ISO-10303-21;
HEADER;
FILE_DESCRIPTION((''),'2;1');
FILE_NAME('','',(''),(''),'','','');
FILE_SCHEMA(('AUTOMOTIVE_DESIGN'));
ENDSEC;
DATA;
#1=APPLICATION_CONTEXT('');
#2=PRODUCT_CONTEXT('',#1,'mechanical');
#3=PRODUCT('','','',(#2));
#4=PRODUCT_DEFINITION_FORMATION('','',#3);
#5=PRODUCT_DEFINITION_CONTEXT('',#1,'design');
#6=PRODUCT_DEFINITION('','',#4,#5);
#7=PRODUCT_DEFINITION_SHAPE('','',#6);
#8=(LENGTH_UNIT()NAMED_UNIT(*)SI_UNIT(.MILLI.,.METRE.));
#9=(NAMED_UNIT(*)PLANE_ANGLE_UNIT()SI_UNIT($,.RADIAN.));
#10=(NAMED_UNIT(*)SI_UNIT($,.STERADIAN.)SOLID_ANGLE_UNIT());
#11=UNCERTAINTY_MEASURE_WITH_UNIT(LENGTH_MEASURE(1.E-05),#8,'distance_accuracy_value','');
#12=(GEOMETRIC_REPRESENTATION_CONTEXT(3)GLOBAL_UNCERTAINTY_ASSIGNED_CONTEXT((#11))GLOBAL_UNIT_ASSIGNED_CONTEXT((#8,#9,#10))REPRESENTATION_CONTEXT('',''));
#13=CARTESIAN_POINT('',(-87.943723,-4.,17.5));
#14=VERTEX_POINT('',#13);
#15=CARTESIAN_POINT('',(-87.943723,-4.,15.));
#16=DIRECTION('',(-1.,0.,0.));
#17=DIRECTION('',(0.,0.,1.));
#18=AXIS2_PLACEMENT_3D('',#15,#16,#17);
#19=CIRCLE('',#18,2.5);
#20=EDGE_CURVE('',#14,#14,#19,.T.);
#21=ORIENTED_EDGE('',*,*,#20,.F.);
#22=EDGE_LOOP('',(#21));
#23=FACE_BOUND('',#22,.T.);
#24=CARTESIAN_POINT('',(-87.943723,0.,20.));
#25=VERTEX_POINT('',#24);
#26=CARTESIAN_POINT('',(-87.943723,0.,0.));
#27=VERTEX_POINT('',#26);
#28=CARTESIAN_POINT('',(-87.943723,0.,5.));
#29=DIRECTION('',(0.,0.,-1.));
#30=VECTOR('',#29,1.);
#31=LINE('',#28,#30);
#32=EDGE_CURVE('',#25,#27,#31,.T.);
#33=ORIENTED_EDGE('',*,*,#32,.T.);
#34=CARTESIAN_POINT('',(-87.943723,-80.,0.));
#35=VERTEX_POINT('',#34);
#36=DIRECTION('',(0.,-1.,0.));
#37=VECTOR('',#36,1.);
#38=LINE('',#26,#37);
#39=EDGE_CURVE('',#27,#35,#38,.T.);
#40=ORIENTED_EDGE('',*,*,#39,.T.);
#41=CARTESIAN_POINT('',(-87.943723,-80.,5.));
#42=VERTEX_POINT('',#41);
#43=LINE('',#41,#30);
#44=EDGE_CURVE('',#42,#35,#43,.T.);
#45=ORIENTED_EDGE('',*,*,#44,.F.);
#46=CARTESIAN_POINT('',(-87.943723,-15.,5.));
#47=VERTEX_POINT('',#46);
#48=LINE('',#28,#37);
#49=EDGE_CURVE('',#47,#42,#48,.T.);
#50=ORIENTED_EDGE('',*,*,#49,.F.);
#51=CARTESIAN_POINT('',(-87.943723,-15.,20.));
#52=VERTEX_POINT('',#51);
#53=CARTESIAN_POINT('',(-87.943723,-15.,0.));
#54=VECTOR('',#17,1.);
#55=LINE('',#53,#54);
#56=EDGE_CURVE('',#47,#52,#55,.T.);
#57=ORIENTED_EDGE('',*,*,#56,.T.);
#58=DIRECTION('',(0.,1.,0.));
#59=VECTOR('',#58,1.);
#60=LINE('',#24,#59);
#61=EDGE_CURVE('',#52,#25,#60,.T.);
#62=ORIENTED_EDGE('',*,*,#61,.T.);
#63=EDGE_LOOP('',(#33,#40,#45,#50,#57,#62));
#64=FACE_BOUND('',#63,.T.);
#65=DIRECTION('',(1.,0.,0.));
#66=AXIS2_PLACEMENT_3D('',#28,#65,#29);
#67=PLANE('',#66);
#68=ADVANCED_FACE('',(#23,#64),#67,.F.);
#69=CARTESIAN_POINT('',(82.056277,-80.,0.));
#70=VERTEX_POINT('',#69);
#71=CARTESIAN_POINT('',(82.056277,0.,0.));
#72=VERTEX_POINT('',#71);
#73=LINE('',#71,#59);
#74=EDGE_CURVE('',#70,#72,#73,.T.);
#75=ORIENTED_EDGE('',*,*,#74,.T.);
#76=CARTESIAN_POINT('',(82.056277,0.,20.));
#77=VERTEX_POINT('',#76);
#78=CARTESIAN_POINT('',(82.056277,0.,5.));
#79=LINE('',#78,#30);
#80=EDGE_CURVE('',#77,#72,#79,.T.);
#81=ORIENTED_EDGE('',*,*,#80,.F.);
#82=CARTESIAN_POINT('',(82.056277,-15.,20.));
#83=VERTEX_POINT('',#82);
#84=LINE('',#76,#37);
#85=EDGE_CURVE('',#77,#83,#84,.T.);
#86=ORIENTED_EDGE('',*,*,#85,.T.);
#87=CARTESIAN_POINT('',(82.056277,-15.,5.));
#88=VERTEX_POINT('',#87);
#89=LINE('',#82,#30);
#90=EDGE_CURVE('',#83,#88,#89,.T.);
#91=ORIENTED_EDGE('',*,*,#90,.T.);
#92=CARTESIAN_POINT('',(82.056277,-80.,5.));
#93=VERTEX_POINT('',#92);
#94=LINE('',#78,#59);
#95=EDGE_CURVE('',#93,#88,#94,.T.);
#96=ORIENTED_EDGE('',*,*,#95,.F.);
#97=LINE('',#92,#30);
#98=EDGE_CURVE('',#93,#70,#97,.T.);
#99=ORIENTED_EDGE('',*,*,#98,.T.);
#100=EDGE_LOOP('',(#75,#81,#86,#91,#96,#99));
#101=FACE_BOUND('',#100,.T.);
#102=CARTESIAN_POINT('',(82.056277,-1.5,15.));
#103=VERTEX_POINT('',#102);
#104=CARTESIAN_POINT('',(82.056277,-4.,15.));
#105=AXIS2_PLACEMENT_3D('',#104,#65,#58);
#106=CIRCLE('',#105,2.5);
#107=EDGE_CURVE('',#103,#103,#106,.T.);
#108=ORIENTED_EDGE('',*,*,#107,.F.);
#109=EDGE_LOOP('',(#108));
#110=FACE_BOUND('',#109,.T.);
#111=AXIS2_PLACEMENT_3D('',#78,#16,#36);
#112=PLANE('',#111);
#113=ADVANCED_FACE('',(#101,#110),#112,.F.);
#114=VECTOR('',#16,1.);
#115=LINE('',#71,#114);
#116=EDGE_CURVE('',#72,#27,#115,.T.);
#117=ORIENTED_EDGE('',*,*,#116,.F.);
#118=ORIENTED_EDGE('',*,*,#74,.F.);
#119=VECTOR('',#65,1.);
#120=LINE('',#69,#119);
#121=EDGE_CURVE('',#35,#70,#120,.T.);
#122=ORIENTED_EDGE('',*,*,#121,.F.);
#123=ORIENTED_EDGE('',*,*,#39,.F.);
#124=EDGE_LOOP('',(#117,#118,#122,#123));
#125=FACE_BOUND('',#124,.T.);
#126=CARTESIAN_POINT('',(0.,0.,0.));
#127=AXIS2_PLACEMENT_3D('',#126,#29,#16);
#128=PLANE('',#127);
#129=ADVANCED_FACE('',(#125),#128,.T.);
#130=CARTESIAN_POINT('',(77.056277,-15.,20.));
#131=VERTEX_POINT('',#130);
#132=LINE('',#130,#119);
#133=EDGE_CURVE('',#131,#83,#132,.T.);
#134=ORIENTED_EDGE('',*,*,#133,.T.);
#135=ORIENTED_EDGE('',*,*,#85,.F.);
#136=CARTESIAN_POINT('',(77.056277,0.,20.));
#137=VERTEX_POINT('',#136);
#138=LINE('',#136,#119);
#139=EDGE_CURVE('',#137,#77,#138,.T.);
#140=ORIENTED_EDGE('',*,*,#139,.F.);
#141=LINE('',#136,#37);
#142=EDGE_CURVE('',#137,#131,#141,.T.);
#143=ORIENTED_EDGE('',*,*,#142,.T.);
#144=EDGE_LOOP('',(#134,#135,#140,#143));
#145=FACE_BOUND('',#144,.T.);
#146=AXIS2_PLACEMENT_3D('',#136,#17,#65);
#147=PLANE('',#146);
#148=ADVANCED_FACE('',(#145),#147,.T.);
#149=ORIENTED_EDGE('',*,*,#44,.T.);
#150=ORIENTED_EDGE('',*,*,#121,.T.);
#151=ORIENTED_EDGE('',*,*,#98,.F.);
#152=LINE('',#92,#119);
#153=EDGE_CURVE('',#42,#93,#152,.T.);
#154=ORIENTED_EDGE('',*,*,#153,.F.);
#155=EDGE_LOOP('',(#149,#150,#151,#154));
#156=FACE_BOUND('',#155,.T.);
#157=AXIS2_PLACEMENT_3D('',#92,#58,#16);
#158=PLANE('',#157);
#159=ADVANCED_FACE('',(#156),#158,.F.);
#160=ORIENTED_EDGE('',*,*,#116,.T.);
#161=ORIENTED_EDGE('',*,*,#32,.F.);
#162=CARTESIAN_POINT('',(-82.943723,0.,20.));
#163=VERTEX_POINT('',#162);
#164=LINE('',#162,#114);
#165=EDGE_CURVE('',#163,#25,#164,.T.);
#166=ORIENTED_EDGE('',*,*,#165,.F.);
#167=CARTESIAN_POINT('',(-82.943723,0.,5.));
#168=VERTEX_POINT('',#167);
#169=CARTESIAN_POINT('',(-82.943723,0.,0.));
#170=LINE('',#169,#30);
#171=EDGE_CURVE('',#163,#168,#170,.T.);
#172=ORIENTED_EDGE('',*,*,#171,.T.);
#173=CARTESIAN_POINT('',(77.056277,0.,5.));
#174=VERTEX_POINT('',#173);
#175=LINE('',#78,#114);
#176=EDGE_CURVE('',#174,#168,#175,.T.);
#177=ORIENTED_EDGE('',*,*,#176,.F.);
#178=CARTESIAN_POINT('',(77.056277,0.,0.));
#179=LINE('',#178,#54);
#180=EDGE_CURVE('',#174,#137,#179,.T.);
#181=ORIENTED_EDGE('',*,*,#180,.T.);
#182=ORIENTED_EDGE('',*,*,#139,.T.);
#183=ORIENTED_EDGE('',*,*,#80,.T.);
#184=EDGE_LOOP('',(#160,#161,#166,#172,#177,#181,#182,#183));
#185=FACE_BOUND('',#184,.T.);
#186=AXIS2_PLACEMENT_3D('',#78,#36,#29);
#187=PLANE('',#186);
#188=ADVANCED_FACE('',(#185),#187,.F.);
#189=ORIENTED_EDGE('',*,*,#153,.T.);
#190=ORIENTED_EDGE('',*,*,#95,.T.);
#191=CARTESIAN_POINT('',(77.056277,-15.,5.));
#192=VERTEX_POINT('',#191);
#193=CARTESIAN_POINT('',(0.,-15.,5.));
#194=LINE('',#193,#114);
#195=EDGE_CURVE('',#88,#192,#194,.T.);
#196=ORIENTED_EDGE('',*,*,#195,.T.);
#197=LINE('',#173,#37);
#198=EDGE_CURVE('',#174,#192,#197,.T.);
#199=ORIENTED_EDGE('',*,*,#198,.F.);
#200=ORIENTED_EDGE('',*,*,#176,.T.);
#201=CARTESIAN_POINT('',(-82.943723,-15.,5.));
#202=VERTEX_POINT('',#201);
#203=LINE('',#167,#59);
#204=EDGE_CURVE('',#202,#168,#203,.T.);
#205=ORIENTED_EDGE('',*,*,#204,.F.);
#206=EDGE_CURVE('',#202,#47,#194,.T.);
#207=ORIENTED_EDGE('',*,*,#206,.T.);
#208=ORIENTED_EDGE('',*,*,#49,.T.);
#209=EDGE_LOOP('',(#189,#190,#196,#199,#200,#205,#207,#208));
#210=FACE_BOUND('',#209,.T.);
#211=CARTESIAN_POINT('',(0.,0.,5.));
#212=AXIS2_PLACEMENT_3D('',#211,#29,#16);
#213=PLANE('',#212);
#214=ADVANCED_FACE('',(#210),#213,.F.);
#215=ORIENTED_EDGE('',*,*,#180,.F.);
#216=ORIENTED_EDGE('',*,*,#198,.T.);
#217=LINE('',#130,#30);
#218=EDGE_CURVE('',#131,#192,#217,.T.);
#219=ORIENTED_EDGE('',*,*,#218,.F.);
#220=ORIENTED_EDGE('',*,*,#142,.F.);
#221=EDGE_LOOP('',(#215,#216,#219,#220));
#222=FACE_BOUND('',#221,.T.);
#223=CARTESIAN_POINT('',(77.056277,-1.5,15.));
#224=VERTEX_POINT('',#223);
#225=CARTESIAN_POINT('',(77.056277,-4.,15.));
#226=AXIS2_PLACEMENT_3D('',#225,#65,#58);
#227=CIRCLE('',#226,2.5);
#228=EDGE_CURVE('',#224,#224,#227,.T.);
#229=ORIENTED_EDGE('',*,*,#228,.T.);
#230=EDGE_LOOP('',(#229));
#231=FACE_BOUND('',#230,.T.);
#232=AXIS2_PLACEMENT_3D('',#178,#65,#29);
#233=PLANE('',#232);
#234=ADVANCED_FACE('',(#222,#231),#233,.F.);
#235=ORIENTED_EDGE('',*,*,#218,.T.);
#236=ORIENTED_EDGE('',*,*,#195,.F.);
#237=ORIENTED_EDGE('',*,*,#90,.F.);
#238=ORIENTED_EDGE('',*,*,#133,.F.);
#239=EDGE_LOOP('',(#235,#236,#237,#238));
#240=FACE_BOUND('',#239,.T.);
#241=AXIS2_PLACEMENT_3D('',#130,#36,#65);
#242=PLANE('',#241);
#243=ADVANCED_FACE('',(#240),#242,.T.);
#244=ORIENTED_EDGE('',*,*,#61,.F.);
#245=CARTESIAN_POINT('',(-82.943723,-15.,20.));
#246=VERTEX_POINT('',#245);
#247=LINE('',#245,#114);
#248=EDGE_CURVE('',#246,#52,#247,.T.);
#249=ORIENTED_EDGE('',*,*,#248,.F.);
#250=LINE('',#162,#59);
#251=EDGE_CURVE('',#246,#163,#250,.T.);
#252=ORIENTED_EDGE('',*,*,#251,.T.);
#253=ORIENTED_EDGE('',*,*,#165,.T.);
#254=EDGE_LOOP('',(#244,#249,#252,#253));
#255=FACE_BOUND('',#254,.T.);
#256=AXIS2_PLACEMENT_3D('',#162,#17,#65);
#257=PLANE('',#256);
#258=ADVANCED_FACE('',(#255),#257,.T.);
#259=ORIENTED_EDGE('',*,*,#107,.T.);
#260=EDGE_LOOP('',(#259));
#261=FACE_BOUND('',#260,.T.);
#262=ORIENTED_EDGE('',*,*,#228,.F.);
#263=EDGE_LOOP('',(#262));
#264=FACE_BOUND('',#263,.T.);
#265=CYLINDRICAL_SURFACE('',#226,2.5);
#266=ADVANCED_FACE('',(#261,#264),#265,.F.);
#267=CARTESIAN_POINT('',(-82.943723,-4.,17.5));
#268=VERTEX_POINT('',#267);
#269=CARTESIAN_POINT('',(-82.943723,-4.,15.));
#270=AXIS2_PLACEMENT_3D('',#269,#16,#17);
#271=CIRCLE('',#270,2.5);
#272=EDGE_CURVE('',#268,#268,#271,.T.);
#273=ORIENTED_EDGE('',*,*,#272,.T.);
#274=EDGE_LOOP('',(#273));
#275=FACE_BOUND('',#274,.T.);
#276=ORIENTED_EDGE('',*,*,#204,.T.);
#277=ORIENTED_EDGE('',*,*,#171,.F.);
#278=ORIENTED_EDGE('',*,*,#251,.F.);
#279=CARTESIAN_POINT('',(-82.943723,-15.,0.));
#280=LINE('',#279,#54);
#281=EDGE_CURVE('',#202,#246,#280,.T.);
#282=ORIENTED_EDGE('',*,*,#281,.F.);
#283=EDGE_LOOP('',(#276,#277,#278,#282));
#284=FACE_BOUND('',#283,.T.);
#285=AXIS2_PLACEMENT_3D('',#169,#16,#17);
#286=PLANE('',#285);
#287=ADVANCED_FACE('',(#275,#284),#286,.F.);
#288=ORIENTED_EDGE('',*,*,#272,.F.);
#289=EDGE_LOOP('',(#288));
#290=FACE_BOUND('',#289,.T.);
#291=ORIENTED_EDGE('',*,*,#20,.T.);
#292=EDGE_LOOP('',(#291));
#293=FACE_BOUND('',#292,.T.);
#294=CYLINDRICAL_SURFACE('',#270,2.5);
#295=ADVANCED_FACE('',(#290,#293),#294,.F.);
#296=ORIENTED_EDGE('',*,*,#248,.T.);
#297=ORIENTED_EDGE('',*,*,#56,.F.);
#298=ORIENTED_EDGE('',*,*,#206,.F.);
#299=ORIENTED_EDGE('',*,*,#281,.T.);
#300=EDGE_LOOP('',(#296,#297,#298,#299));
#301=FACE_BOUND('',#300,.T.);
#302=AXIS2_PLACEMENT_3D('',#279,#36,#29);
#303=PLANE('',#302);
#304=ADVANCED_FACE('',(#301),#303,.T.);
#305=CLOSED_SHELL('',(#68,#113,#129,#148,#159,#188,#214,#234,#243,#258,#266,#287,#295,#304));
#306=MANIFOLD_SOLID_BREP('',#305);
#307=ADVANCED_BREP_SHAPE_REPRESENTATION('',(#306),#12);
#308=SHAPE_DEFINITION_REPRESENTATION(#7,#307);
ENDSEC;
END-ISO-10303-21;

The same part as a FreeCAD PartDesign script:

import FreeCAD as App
import Part
import Sketcher

V = App.Vector
Q = App.Units.Quantity


def add_polygon(sketch, points):
    """Adds a closed chain of lines whose ends are joined by coincident constraints."""
    first, n = sketch.GeometryCount, len(points)
    for a, b in zip(points, points[1:] + points[:1]):
        sketch.addGeometry(Part.LineSegment(App.Vector(*a, 0), App.Vector(*b, 0)), False)
    for i in range(n):
        sketch.addConstraint(Sketcher.Constraint("Coincident", first + i, 2, first + (i + 1) % n, 1))

doc = App.newDocument("Part")
params = doc.addObject("Spreadsheet::Sheet", "Params")
for row, (alias, value) in enumerate([
    ("sketch1_width", "170 mm"),
    ("sketch1_height", "80 mm"),
    ("pad1_length", "5 mm"),
    ("sketch2_diameter", "5 mm"),
    ("sketch2_width", "15 mm"),
    ("sketch2_height", "20 mm"),
    ("pad2_length", "5 mm"),
    ("sketch3_diameter", "5 mm"),
    ("sketch3_width", "15 mm"),
    ("sketch3_height", "20 mm"),
    ("pad3_length", "5 mm"),
], start=1):
    params.set(f"A{row}", alias)
    params.set(f"B{row}", "=" + value)
    params.setAlias(f"B{row}", alias)

body = doc.addObject("PartDesign::Body", "Body")

# Sketch on XY plane
sketch1 = doc.addObject("Sketcher::SketchObject", "Sketch")
body.addObject(sketch1)
sketch1.AttachmentSupport = (doc.XY_Plane, [""])
sketch1.MapMode = "FlatFace"
add_polygon(sketch1, [(-88, 0), (-88, -80), (82, -80), (82, 0)])  # lines 0-3
sketch1.addConstraint([
    Sketcher.Constraint("Vertical", 0),
    Sketcher.Constraint("Horizontal", 1),
    Sketcher.Constraint("Vertical", 2),
    Sketcher.Constraint("Horizontal", 3),
    Sketcher.Constraint("PointOnObject", 2, 2, -1),
    Sketcher.Constraint("DistanceX", 1, 1, 1, 2, Q("170 mm")),
    Sketcher.Constraint("DistanceY", 0, 2, 0, 1, Q("80 mm")),
    Sketcher.Constraint("DistanceX", 0, 2, -1, 1, Q("87.943723 mm")),
])
sketch1.setExpression("Constraints[9]", "Params.sketch1_width")
sketch1.setExpression("Constraints[10]", "Params.sketch1_height")
pad1 = doc.addObject("PartDesign::Pad", "Pad")
body.addObject(pad1)
pad1.Profile = sketch1
pad1.setExpression("Length", "Params.pad1_length")

# Sketch on YZ plane
sketch2 = doc.addObject("Sketcher::SketchObject", "Sketch001")
body.addObject(sketch2)
sketch2.AttachmentSupport = (doc.YZ_Plane, [""])
sketch2.MapMode = "FlatFace"
sketch2.AttachmentOffset = App.Placement(V(0, 0, -87.943723), App.Rotation())
add_polygon(sketch2, [(0, 0), (-15, 0), (-15, 20), (0, 20)])  # lines 0-3
sketch2.addGeometry(Part.Circle(V(-4, 15, 0), V(0, 0, 1), 2.5), False)  # 4
sketch2.addConstraint([
    Sketcher.Constraint("Horizontal", 0),
    Sketcher.Constraint("Vertical", 1),
    Sketcher.Constraint("Horizontal", 2),
    Sketcher.Constraint("Vertical", 3),
    Sketcher.Constraint("Coincident", 3, 2, -1, 1),
    Sketcher.Constraint("Diameter", 4, Q("5 mm")),
    Sketcher.Constraint("DistanceX", 0, 2, 0, 1, Q("15 mm")),
    Sketcher.Constraint("DistanceY", 1, 1, 1, 2, Q("20 mm")),
    Sketcher.Constraint("DistanceX", 4, 3, -1, 1, Q("4 mm")),
    Sketcher.Constraint("DistanceY", -1, 1, 4, 3, Q("15 mm")),
])
sketch2.setExpression("Constraints[9]", "Params.sketch2_diameter")
sketch2.setExpression("Constraints[10]", "Params.sketch2_width")
sketch2.setExpression("Constraints[11]", "Params.sketch2_height")
pad2 = doc.addObject("PartDesign::Pad", "Pad001")
body.addObject(pad2)
pad2.Profile = sketch2
pad2.setExpression("Length", "Params.pad2_length")

# Sketch on YZ plane
sketch3 = doc.addObject("Sketcher::SketchObject", "Sketch002")
body.addObject(sketch3)
sketch3.AttachmentSupport = (doc.YZ_Plane, [""])
sketch3.MapMode = "FlatFace"
sketch3.AttachmentOffset = App.Placement(V(0, 0, 77.056277), App.Rotation())
add_polygon(sketch3, [(0, 20), (-15, 20), (-15, 0), (0, 0)])  # lines 0-3
sketch3.addGeometry(Part.Circle(V(-4, 15, 0), V(0, 0, 1), 2.5), False)  # 4
sketch3.addConstraint([
    Sketcher.Constraint("Horizontal", 0),
    Sketcher.Constraint("Vertical", 1),
    Sketcher.Constraint("Horizontal", 2),
    Sketcher.Constraint("Vertical", 3),
    Sketcher.Constraint("Coincident", 2, 2, -1, 1),
    Sketcher.Constraint("Diameter", 4, Q("5 mm")),
    Sketcher.Constraint("DistanceX", 0, 2, 0, 1, Q("15 mm")),
    Sketcher.Constraint("DistanceY", 1, 2, 1, 1, Q("20 mm")),
    Sketcher.Constraint("DistanceX", 4, 3, -1, 1, Q("4 mm")),
    Sketcher.Constraint("DistanceY", -1, 1, 4, 3, Q("15 mm")),
])
sketch3.setExpression("Constraints[9]", "Params.sketch3_diameter")
sketch3.setExpression("Constraints[10]", "Params.sketch3_width")
sketch3.setExpression("Constraints[11]", "Params.sketch3_height")
pad3 = doc.addObject("PartDesign::Pad", "Pad002")
body.addObject(pad3)
pad3.Profile = sketch3
pad3.setExpression("Length", "Params.pad3_length")

doc.recompute()
